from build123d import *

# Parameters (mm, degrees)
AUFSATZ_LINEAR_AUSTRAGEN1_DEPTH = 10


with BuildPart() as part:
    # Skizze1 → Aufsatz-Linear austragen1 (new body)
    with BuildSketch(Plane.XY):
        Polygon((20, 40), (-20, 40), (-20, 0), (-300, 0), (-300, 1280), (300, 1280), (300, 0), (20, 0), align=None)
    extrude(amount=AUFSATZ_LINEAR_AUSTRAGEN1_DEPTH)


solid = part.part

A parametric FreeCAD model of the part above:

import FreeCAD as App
import Part
import Sketcher


def add_polygon(sketch, points):
    """Adds a closed chain of lines whose ends are joined by coincident constraints."""
    first, n = sketch.GeometryCount, len(points)
    for a, b in zip(points, points[1:] + points[:1]):
        sketch.addGeometry(Part.LineSegment(App.Vector(*a, 0), App.Vector(*b, 0)), False)
    for i in range(n):
        sketch.addConstraint(Sketcher.Constraint("Coincident", first + i, 2, first + (i + 1) % n, 1))

doc = App.newDocument("Part")
body = doc.addObject("PartDesign::Body", "Body")

sketch1 = doc.addObject("Sketcher::SketchObject", "Sketch")
body.addObject(sketch1)
sketch1.AttachmentSupport = (doc.XY_Plane, [""])
sketch1.MapMode = "FlatFace"
add_polygon(sketch1, [(-20, 40), (20, 40), (20, 0), (300, 0), (300, 1280), (-300, 1280), (-300, 0), (-20, 0)])
sketch1.addConstraint(Sketcher.Constraint("Horizontal", 0))
sketch1.addConstraint(Sketcher.Constraint("Vertical", 1))
sketch1.addConstraint(Sketcher.Constraint("Horizontal", 2))
sketch1.addConstraint(Sketcher.Constraint("Vertical", 3))
sketch1.addConstraint(Sketcher.Constraint("Horizontal", 4))
sketch1.addConstraint(Sketcher.Constraint("Vertical", 5))
sketch1.addConstraint(Sketcher.Constraint("Horizontal", 6))
sketch1.addConstraint(Sketcher.Constraint("Vertical", 7))
sketch1.addConstraint(Sketcher.Constraint("Symmetric", 2, 2, 5, 2, -1, 1))
sketch1.addConstraint(Sketcher.Constraint("Symmetric", 1, 2, 6, 2, -2))
sketch1.addConstraint(Sketcher.Constraint("Equal", 0, 1))
sketch1.addConstraint(Sketcher.Constraint("DistanceX", 0, 1, 0, 2, 40.0))
sketch1.addConstraint(Sketcher.Constraint("DistanceX", 2, 1, 2, 2, 280.0))
sketch1.addConstraint(Sketcher.Constraint("DistanceY", 3, 1, 3, 2, 1280.0))
pad1 = doc.addObject("PartDesign::Pad", "Pad")
body.addObject(pad1)
pad1.Profile = sketch1
pad1.Length = 10

doc.recompute()
